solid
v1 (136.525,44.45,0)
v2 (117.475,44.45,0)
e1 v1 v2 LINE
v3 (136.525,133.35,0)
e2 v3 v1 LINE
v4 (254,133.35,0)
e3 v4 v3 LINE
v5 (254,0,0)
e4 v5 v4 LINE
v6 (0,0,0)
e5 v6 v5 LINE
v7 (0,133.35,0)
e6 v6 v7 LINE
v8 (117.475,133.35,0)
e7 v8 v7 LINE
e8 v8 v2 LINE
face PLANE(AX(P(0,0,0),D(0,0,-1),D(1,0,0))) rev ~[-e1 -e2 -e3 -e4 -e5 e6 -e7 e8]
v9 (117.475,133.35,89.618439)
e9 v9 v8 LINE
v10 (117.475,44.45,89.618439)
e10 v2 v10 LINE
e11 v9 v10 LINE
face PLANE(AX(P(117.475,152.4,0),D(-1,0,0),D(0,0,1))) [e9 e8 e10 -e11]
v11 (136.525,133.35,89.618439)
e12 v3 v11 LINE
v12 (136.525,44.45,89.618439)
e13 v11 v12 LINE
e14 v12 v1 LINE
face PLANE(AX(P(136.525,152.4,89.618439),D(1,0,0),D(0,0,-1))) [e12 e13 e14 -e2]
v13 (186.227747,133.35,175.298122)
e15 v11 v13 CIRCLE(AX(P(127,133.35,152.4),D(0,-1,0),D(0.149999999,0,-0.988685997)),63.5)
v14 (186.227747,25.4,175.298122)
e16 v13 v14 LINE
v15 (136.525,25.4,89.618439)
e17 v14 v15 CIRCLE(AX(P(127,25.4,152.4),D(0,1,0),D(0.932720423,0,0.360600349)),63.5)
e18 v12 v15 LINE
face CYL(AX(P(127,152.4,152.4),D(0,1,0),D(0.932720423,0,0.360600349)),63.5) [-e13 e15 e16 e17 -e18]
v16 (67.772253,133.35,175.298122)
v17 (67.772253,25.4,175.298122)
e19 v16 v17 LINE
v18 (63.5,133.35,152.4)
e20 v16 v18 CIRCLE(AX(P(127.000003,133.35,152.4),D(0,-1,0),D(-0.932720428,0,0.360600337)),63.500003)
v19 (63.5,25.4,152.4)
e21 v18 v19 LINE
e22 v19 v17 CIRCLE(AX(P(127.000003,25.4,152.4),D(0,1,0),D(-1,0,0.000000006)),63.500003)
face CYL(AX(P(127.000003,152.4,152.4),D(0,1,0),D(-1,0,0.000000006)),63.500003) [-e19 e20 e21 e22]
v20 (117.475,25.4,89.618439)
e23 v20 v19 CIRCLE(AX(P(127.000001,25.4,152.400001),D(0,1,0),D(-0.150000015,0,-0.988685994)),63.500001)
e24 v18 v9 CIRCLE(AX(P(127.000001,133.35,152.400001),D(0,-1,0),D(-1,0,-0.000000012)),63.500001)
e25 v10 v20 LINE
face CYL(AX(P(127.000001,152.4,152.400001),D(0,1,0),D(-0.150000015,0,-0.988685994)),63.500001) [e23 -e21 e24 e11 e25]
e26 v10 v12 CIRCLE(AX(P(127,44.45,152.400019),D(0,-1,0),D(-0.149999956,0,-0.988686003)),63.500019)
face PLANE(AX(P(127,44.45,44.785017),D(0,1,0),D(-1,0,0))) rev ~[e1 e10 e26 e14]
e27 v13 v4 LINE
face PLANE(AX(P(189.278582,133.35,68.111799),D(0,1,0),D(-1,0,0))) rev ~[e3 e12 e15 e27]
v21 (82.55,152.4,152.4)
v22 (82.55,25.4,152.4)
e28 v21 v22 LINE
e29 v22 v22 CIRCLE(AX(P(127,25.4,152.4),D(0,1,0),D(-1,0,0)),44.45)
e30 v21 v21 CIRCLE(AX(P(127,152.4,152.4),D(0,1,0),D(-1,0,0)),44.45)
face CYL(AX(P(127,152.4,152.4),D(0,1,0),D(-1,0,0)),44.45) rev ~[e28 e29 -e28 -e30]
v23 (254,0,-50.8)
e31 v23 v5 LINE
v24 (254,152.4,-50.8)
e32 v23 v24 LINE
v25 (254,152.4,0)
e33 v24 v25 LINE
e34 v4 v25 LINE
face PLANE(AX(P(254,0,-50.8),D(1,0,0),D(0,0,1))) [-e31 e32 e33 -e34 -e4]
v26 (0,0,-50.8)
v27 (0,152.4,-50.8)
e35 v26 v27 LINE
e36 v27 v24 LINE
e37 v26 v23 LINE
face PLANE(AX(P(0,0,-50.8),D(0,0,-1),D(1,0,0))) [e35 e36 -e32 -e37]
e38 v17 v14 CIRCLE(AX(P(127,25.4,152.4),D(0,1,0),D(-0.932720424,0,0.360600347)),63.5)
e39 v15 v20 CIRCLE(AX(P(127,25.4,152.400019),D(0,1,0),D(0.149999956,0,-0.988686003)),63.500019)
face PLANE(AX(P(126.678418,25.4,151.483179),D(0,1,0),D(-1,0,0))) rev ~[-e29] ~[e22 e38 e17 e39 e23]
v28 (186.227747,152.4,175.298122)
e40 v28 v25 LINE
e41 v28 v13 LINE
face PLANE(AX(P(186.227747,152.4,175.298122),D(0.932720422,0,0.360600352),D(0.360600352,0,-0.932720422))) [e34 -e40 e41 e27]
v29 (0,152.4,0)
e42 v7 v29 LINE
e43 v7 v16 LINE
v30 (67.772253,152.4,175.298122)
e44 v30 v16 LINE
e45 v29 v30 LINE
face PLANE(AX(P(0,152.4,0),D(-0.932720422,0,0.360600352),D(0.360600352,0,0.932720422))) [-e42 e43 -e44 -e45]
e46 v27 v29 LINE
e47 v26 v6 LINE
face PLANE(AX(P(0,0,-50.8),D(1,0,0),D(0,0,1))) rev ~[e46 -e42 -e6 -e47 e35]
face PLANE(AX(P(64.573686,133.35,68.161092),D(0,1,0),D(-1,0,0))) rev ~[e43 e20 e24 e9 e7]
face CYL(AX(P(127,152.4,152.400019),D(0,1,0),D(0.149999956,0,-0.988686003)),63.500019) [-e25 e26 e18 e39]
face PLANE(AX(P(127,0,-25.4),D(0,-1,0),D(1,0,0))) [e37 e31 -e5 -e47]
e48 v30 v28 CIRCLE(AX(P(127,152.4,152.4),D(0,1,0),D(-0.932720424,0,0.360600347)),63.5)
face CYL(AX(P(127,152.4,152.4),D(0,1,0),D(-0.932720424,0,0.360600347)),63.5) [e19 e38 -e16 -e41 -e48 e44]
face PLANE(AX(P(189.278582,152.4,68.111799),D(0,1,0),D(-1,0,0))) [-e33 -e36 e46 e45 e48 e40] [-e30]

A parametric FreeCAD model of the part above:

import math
import FreeCAD as App
import Part
import Sketcher
Q = App.Units.Quantity

doc = App.newDocument("Part")
body = doc.addObject("PartDesign::Body", "Body")

# Sketch on XZ plane
sketch1 = body.newObject("Sketcher::SketchObject", "Sketch")
sketch1.AttachmentSupport = (doc.getObject("XZ_Plane"), [""])
sketch1.MapMode = "FlatFace"
sketch1.addGeometry([
    Part.LineSegment(App.Vector(0, 0, 0), App.Vector(0, -51, 0)),
    Part.LineSegment(App.Vector(0, -51, 0), App.Vector(254, -51, 0)),
    Part.LineSegment(App.Vector(254, -51, 0), App.Vector(254, 0, 0)),
    Part.LineSegment(App.Vector(254, 0, 0), App.Vector(0, 0, 0)),
], False)
sketch1.addConstraint([
    Sketcher.Constraint("Coincident", 0, 2, 1, 1),
    Sketcher.Constraint("Coincident", 1, 2, 2, 1),
    Sketcher.Constraint("Coincident", 2, 2, 3, 1),
    Sketcher.Constraint("Coincident", 3, 2, 0, 1),
    Sketcher.Constraint("Vertical", 0),
    Sketcher.Constraint("Horizontal", 1),
    Sketcher.Constraint("Vertical", 2),
    Sketcher.Constraint("Horizontal", 3),
    Sketcher.Constraint("Coincident", 3, 2, -1, 1),
    Sketcher.Constraint("DistanceX", 1, 1, 1, 2, Q("10 in")),
    Sketcher.Constraint("DistanceY", 0, 2, 0, 1, Q("2 in")),
])
pad1 = body.newObject("PartDesign::Pad", "Pad")
pad1.Profile = sketch1
pad1.Length = Q("6 in")
pad1.Reversed = True

# Sketch on XZ plane
sketch2 = body.newObject("Sketcher::SketchObject", "Sketch001")
sketch2.AttachmentSupport = (doc.getObject("XZ_Plane"), [""])
sketch2.MapMode = "FlatFace"
sketch2.AttachmentOffset = App.Placement(App.Vector(0, 0, -6 * 25.4), App.Rotation())
sketch2.addGeometry([
    Part.LineSegment(App.Vector(117, 0, 0), App.Vector(117, 90, 0)),
    Part.ArcOfCircle(Part.Circle(App.Vector(127, 152, 0), App.Vector(0, 0, 1), 64), math.radians(-98.63), math.radians(-81.37)),
    Part.LineSegment(App.Vector(137, 90, 0), App.Vector(137, 0, 0)),
    Part.LineSegment(App.Vector(137, 0, 0), App.Vector(117, 0, 0)),
], False)
sketch2.addConstraint([
    Sketcher.Constraint("Coincident", 0, 2, 1, 1),
    Sketcher.Constraint("Coincident", 1, 2, 2, 1),
    Sketcher.Constraint("Coincident", 2, 2, 3, 1),
    Sketcher.Constraint("Coincident", 3, 2, 0, 1),
    Sketcher.Constraint("Vertical", 0),
    Sketcher.Constraint("Vertical", 2),
    Sketcher.Constraint("Horizontal", 3),
    Sketcher.Constraint("PointOnObject", 2, 2, -1),
    Sketcher.Constraint("Horizontal", 0, 2, 1, 2),
    Sketcher.Constraint("DistanceX", -1, 1, 1, 3, Q("5 in")),
    Sketcher.Constraint("DistanceX", 3, 2, 3, 1, Q("0.75 in")),
    Sketcher.Constraint("Radius", 1, 63.500019),
    Sketcher.Constraint("DistanceY", 0, 1, 0, 2, 89.618439),
])
pad2 = body.newObject("PartDesign::Pad", "Pad001")
pad2.Profile = sketch2
pad2.Length = Q("4.25 in")

# Sketch on XZ plane
sketch3 = body.newObject("Sketcher::SketchObject", "Sketch002")
sketch3.AttachmentSupport = (doc.getObject("XZ_Plane"), [""])
sketch3.MapMode = "FlatFace"
sketch3.AttachmentOffset = App.Placement(App.Vector(0, 0, -6 * 25.4), App.Rotation())
sketch3.addGeometry([
    Part.ArcOfCircle(Part.Circle(App.Vector(127.000001, 152.400001, 0), App.Vector(0, 0, 1), 63.500001), math.radians(-179.999999), math.radians(-98.626927)),  # 0
    Part.ArcOfCircle(Part.Circle(App.Vector(127.000003, 152.4, 0), App.Vector(0, 0, 1), 63.500003), math.radians(158.862931), math.radians(180)),  # 1
    Part.ArcOfCircle(Part.Circle(App.Vector(127, 152.4, 0), App.Vector(0, 0, 1), 63.5), math.radians(21.13707), math.radians(158.86293)),  # 2
    Part.ArcOfCircle(Part.Circle(App.Vector(127, 152.4, 0), App.Vector(0, 0, 1), 63.5), math.radians(-81.373074), math.radians(21.13707)),  # 3
    Part.ArcOfCircle(Part.Circle(App.Vector(127, 152.400019, 0), App.Vector(0, 0, 1), 63.500019), math.radians(-98.626924), math.radians(-81.373076)),  # 4
    Part.Circle(App.Vector(127, 152.4, 0), App.Vector(0, 0, 1), 44.45),  # 5
], False)
sketch3.addConstraint([
    Sketcher.Constraint("Tangent", 0, 1, 1, 2),
    Sketcher.Constraint("Tangent", 1, 1, 2, 2),
    Sketcher.Constraint("Tangent", 2, 1, 3, 2),
    Sketcher.Constraint("Tangent", 3, 1, 4, 2),
    Sketcher.Constraint("Tangent", 4, 1, 0, 2),
    Sketcher.Constraint("Coincident", 2, 3, 0, 3),
    Sketcher.Constraint("Coincident", 5, 3, 0, 3),
    Sketcher.Constraint("Horizontal", 5, 3, 0, 1),
    Sketcher.Constraint("Horizontal", 1, 1, 2, 1),
    Sketcher.Constraint("Horizontal", 3, 1, 4, 1),
    Sketcher.Constraint("Diameter", 5, Q("3.5 in")),
    Sketcher.Constraint("Radius", 0, Q("2.5 in")),
    Sketcher.Constraint("DistanceX", -1, 1, 0, 3, Q("5 in")),
    Sketcher.Constraint("DistanceY", -1, 1, 0, 3, Q("6 in")),
    Sketcher.Constraint("DistanceX", 4, 1, 3, 1, Q("0.75 in")),
    Sketcher.Constraint("DistanceY", 4, 3, 1, 1, Q("0.9015001 in")),
])
pad3 = body.newObject("PartDesign::Pad", "Pad002")
pad3.Profile = sketch3
pad3.Length = Q("5 in")

# Sketch on XZ plane
sketch4 = body.newObject("Sketcher::SketchObject", "Sketch003")
sketch4.AttachmentSupport = (doc.getObject("XZ_Plane"), [""])
sketch4.MapMode = "FlatFace"
sketch4.AttachmentOffset = App.Placement(App.Vector(0, 0, -6 * 25.4), App.Rotation())
sketch4.addGeometry([
    Part.ArcOfCircle(Part.Circle(App.Vector(127, 152, 0), App.Vector(0, 0, 1), 64), math.radians(-81), math.radians(21)),  # 0
    Part.LineSegment(App.Vector(186, 175, 0), App.Vector(254, 0, 0)),  # 1
    Part.LineSegment(App.Vector(254, 0, 0), App.Vector(137, 0, 0)),  # 2
    Part.LineSegment(App.Vector(137, 0, 0), App.Vector(137, 90, 0)),  # 3
    Part.ArcOfCircle(Part.Circle(App.Vector(127, 152, 0), App.Vector(0, 0, 1), 64), math.radians(159), math.radians(180)),  # 4
    Part.ArcOfCircle(Part.Circle(App.Vector(127, 152, 0), App.Vector(0, 0, 1), 64), math.radians(-180), math.radians(-99)),  # 5
    Part.LineSegment(App.Vector(117, 90, 0), App.Vector(117, 0, 0)),  # 6
    Part.LineSegment(App.Vector(117, 0, 0), App.Vector(0, 0, 0)),  # 7
    Part.LineSegment(App.Vector(0, 0, 0), App.Vector(68, 175, 0)),  # 8
], False)
sketch4.addConstraint([
    Sketcher.Constraint("Tangent", 0, 2, 1, 1),
    Sketcher.Constraint("Coincident", 1, 2, 2, 1),
    Sketcher.Constraint("Coincident", 2, 2, 3, 1),
    Sketcher.Constraint("Coincident", 3, 2, 0, 1),
    Sketcher.Constraint("Tangent", 4, 2, 5, 1),
    Sketcher.Constraint("Coincident", 5, 2, 6, 1),
    Sketcher.Constraint("Coincident", 6, 2, 7, 1),
    Sketcher.Constraint("Coincident", 7, 2, 8, 1),
    Sketcher.Constraint("Tangent", 8, 2, 4, 1),
    Sketcher.Constraint("Horizontal", 2),
    Sketcher.Constraint("Vertical", 3),
    Sketcher.Constraint("Vertical", 6),
    Sketcher.Constraint("Horizontal", 7),
    Sketcher.Constraint("Coincident", 7, 2, -1, 1),
    Sketcher.Constraint("Coincident", 4, 3, 0, 3),
    Sketcher.Constraint("Equal", 4, 5),
    Sketcher.Constraint("PointOnObject", 1, 2, -1),
    Sketcher.Constraint("Horizontal", 5, 3, 4, 2),
    Sketcher.Constraint("Horizontal", 3, 2, 5, 2),
    Sketcher.Constraint("Horizontal", 0, 2, 8, 2),
    Sketcher.Constraint("Equal", 2, 7),
    Sketcher.Constraint("Radius", 0, Q("2.5 in")),
    Sketcher.Constraint("DistanceX", -1, 1, 0, 3, Q("5 in")),
    Sketcher.Constraint("DistanceY", -1, 1, 0, 3, Q("6 in")),
    Sketcher.Constraint("DistanceX", 2, 2, 2, 1, Q("4.625 in")),
])
pad4 = body.newObject("PartDesign::Pad", "Pad003")
pad4.Profile = sketch4
pad4.Length = Q("0.75 in")

doc.recompute()
